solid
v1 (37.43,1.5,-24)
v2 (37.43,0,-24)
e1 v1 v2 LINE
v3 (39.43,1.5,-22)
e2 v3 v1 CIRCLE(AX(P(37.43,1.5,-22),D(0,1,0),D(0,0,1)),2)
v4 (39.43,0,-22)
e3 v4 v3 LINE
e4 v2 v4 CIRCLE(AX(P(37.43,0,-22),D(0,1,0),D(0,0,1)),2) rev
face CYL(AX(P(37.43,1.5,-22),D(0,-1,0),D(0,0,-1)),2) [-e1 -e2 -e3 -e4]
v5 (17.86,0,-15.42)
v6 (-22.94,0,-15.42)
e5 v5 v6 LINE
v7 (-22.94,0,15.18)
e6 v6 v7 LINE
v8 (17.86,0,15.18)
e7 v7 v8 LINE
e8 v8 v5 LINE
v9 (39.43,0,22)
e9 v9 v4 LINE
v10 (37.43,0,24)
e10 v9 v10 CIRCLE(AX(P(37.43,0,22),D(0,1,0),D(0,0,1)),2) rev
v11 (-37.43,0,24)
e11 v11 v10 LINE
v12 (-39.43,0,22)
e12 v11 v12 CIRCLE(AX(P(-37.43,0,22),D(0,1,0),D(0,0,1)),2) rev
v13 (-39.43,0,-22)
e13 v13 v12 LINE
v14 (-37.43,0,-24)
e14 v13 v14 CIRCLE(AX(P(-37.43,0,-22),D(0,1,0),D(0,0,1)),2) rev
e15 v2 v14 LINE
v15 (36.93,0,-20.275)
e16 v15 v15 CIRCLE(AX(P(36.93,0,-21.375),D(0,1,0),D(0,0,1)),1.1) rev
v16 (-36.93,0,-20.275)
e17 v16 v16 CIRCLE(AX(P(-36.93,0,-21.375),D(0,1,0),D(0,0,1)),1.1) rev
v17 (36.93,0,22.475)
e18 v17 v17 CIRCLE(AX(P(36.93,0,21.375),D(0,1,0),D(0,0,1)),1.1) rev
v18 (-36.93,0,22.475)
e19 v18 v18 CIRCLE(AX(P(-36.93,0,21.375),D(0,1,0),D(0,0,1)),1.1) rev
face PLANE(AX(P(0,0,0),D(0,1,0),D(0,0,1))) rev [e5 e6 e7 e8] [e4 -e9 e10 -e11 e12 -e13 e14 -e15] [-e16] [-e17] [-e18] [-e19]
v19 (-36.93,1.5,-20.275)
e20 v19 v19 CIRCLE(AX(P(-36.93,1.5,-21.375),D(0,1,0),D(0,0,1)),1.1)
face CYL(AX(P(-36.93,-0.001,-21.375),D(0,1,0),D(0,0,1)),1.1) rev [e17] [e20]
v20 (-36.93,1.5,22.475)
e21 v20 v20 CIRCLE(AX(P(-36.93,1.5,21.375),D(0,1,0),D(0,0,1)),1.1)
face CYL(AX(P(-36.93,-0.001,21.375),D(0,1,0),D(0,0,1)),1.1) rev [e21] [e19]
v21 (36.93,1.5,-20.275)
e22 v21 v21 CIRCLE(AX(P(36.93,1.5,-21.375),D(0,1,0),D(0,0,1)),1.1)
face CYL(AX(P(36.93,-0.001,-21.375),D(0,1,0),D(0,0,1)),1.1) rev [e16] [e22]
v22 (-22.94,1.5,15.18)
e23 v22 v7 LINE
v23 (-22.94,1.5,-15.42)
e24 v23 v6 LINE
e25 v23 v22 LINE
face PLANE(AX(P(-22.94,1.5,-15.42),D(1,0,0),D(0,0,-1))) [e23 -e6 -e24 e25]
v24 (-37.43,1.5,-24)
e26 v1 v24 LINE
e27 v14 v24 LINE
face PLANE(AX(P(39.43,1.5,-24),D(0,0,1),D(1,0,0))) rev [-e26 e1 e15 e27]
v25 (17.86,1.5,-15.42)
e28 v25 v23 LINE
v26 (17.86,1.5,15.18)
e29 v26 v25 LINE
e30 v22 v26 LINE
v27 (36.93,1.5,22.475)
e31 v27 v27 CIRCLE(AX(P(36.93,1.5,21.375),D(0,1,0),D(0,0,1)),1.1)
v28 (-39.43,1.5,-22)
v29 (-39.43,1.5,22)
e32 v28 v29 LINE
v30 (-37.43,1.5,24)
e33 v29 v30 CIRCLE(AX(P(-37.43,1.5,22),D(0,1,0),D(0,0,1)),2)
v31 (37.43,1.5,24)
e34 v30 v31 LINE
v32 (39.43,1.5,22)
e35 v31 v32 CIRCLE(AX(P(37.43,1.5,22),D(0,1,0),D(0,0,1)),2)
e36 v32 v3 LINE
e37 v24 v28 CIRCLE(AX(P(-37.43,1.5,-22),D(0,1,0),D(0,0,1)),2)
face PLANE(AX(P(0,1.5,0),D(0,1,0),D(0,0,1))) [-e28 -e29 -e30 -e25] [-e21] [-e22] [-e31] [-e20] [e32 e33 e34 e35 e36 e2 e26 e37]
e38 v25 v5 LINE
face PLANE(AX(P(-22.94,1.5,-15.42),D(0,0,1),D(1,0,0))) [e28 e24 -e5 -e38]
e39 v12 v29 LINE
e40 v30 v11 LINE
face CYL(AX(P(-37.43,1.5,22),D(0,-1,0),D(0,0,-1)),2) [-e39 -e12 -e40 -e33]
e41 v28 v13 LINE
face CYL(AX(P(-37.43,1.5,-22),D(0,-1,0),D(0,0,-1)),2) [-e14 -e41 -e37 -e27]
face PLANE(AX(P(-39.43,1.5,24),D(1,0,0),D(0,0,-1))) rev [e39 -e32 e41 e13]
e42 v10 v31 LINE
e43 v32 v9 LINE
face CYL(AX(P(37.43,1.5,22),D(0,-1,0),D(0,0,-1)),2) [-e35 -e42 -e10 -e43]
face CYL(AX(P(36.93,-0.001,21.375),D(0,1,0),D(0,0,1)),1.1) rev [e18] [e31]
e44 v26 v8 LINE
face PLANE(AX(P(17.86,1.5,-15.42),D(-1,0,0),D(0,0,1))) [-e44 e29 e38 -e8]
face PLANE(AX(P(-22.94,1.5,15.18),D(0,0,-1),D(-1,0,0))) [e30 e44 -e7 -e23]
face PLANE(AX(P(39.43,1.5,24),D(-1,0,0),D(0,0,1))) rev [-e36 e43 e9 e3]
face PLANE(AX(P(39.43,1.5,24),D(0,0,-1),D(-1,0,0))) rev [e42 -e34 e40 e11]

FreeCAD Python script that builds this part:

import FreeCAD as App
import Part
import Sketcher
from FreeCAD import Vector
Q = App.Units.Quantity


def edges_at(feature, points):
    """Names of the edges that pass closest to the given points."""
    edges = feature.Shape.Edges
    near = lambda p: min(range(len(edges)), key=lambda i: edges[i].distToShape(Part.Vertex(*p))[0])
    return sorted({f"Edge{near(p) + 1}" for p in points})


def add_polygon(sketch, points):
    """Adds a closed chain of lines whose ends are joined by coincident constraints."""
    first, n = sketch.GeometryCount, len(points)
    for a, b in zip(points, points[1:] + points[:1]):
        sketch.addGeometry(Part.LineSegment(App.Vector(*a, 0), App.Vector(*b, 0)), False)
    for i in range(n):
        sketch.addConstraint(Sketcher.Constraint("Coincident", first + i, 2, first + (i + 1) % n, 1))

doc = App.newDocument("Part")
body = doc.addObject("PartDesign::Body", "Body")

sketch1 = body.newObject("Sketcher::SketchObject", "Sketch")
sketch1.AttachmentSupport = (doc.getObject("XZ_Plane"), [""])
sketch1.MapMode = "FlatFace"
add_polygon(sketch1, [(-39, -24), (-39, 24), (39, 24), (39, -24)])
add_polygon(sketch1, [(18, 15), (-23, 15), (-23, -15), (18, -15)])
sketch1.addConstraint([
    Sketcher.Constraint("Vertical", 0),
    Sketcher.Constraint("Horizontal", 1),
    Sketcher.Constraint("Vertical", 2),
    Sketcher.Constraint("Horizontal", 3),
    Sketcher.Constraint("Horizontal", 4),
    Sketcher.Constraint("Vertical", 5),
    Sketcher.Constraint("Horizontal", 6),
    Sketcher.Constraint("Vertical", 7),
    Sketcher.Constraint("Symmetric", 0, 2, 2, 2, -1, 1),
    Sketcher.Constraint("DistanceY", 0, 1, 0, 2, Q("48 mm")),
    Sketcher.Constraint("DistanceX", 4, 2, 4, 1, Q("40.8 mm")),
    Sketcher.Constraint("DistanceY", 5, 2, 5, 1, Q("30.6 mm")),
    Sketcher.Constraint("DistanceX", 1, 1, 1, 2, Q("78.86 mm")),
    Sketcher.Constraint("DistanceX", 4, 2, -1, 1, Q("22.94 mm")),
    Sketcher.Constraint("DistanceY", -1, 1, 4, 2, Q("15.18 mm")),
])
pad1 = body.newObject("PartDesign::Pad", "Pad")
pad1.Profile = sketch1
pad1.Length = 1.5
pad1.Reversed = True

sketch2 = body.newObject("Sketcher::SketchObject", "Sketch001")
sketch2.AttachmentSupport = (doc.getObject("XZ_Plane"), [""])
sketch2.MapMode = "FlatFace"
sketch2.AttachmentOffset = App.Placement(Vector(0, 0, -1.5), App.Rotation())
sketch2.addGeometry(Part.Circle(Vector(-36.9, -21.4, 0), Vector(0, 0, 1), 1.1), False)
sketch2.addConstraint([
    Sketcher.Constraint("Diameter", 0, Q("2.2 mm")),
    Sketcher.Constraint("DistanceX", 0, 3, -1, 1, Q("36.93 mm")),
    Sketcher.Constraint("DistanceY", 0, 3, -1, 1, Q("21.375 mm")),
])
pocket1 = body.newObject("PartDesign::Pocket", "Pocket")
pocket1.Profile = sketch2
pocket1.Type = "UpToFirst"
pocket1.Reversed = True

sketch3 = body.newObject("Sketcher::SketchObject", "Sketch002")
sketch3.AttachmentSupport = (doc.getObject("XZ_Plane"), [""])
sketch3.MapMode = "FlatFace"
sketch3.AttachmentOffset = App.Placement(Vector(0, 0, -1.5), App.Rotation())
sketch3.addGeometry(Part.Circle(Vector(-36.9, 21.4, 0), Vector(0, 0, 1), 1.1), False)
sketch3.addConstraint([
    Sketcher.Constraint("Diameter", 0, Q("2.2 mm")),
    Sketcher.Constraint("DistanceX", 0, 3, -1, 1, Q("36.93 mm")),
    Sketcher.Constraint("DistanceY", -1, 1, 0, 3, Q("21.375 mm")),
])
pocket2 = body.newObject("PartDesign::Pocket", "Pocket001")
pocket2.Profile = sketch3
pocket2.Type = "UpToFirst"
pocket2.Reversed = True

sketch4 = body.newObject("Sketcher::SketchObject", "Sketch003")
sketch4.AttachmentSupport = (doc.getObject("XZ_Plane"), [""])
sketch4.MapMode = "FlatFace"
sketch4.AttachmentOffset = App.Placement(Vector(0, 0, -1.5), App.Rotation())
sketch4.addGeometry(Part.Circle(Vector(36.9, -21.4, 0), Vector(0, 0, 1), 1.1), False)
sketch4.addConstraint([
    Sketcher.Constraint("Diameter", 0, Q("2.2 mm")),
    Sketcher.Constraint("DistanceX", -1, 1, 0, 3, Q("36.93 mm")),
    Sketcher.Constraint("DistanceY", 0, 3, -1, 1, Q("21.375 mm")),
])
pocket3 = body.newObject("PartDesign::Pocket", "Pocket002")
pocket3.Profile = sketch4
pocket3.Type = "UpToFirst"
pocket3.Reversed = True

sketch5 = body.newObject("Sketcher::SketchObject", "Sketch004")
sketch5.AttachmentSupport = (doc.getObject("XZ_Plane"), [""])
sketch5.MapMode = "FlatFace"
sketch5.AttachmentOffset = App.Placement(Vector(0, 0, -1.5), App.Rotation())
sketch5.addGeometry(Part.Circle(Vector(36.9, 21.4, 0), Vector(0, 0, 1), 1.1), False)
sketch5.addConstraint([
    Sketcher.Constraint("Diameter", 0, Q("2.2 mm")),
    Sketcher.Constraint("DistanceX", -1, 1, 0, 3, Q("36.93 mm")),
    Sketcher.Constraint("DistanceY", -1, 1, 0, 3, Q("21.375 mm")),
])
pocket4 = body.newObject("PartDesign::Pocket", "Pocket003")
pocket4.Profile = sketch5
pocket4.Type = "UpToFirst"
pocket4.Reversed = True
doc.recompute()

fillet = body.newObject("PartDesign::Fillet", "Fillet")
fillet.Base = (pocket4, edges_at(pocket4, [
    (-39.43, 0.75, -24),
    (39.43, 0.75, -24),
    (39.43, 0.75, 24),
    (-39.43, 0.75, 24),
]))
fillet.Radius = 2

doc.recompute()
